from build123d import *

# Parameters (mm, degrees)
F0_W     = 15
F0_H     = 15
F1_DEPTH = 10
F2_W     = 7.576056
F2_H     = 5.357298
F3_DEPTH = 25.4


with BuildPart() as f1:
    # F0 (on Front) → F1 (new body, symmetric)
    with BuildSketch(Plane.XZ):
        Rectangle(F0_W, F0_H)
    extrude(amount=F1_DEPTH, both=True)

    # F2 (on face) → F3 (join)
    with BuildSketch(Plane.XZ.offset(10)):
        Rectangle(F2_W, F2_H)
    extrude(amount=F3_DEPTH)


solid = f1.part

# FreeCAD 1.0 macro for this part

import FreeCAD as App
import Part
import Sketcher

V = App.Vector
Q = App.Units.Quantity

doc = App.newDocument("Part")
params = doc.addObject("Spreadsheet::Sheet", "Params")
for row, (alias, value) in enumerate([
    ("sketch1_width", "15 mm"),
    ("pad1_length", "20 mm"),
    ("pad2_length", "25.4 mm"),
], start=1):
    params.set(f"A{row}", alias)
    params.set(f"B{row}", "=" + value)
    params.setAlias(f"B{row}", alias)

body = doc.addObject("PartDesign::Body", "Body")

sketch1 = body.newObject("Sketcher::SketchObject", "Sketch")
sketch1.AttachmentSupport = (doc.getObject("XZ_Plane"), [""])
sketch1.MapMode = "FlatFace"
sketch1.addGeometry([
    Part.LineSegment(V(-8, 8, 0), V(-8, -8, 0)),
    Part.LineSegment(V(-8, -8, 0), V(8, -8, 0)),
    Part.LineSegment(V(8, -8, 0), V(8, 8, 0)),
    Part.LineSegment(V(8, 8, 0), V(-8, 8, 0)),
], False)
sketch1.addConstraint([
    Sketcher.Constraint("Coincident", 0, 2, 1, 1),
    Sketcher.Constraint("Coincident", 1, 2, 2, 1),
    Sketcher.Constraint("Coincident", 2, 2, 3, 1),
    Sketcher.Constraint("Coincident", 3, 2, 0, 1),
    Sketcher.Constraint("Vertical", 0),
    Sketcher.Constraint("Horizontal", 1),
    Sketcher.Constraint("Vertical", 2),
    Sketcher.Constraint("Horizontal", 3),
    Sketcher.Constraint("Symmetric", 0, 2, 2, 2, -1, 1),
    Sketcher.Constraint("Equal", 3, 0),
    Sketcher.Constraint("DistanceX", 1, 1, 1, 2, Q("15 mm")),
])
sketch1.setExpression("Constraints[10]", "Params.sketch1_width")
pad1 = body.newObject("PartDesign::Pad", "Pad")
pad1.Profile = sketch1
pad1.setExpression("Length", "Params.pad1_length")
pad1.Midplane = True

sketch2 = body.newObject("Sketcher::SketchObject", "Sketch001")
sketch2.AttachmentSupport = (doc.getObject("XZ_Plane"), [""])
sketch2.MapMode = "FlatFace"
sketch2.AttachmentOffset = App.Placement(V(0, 0, 10), App.Rotation())
sketch2.addGeometry([
    Part.LineSegment(V(-4, 3, 0), V(-4, -3, 0)),
    Part.LineSegment(V(-4, -3, 0), V(4, -3, 0)),
    Part.LineSegment(V(4, -3, 0), V(4, 3, 0)),
    Part.LineSegment(V(4, 3, 0), V(-4, 3, 0)),
], False)
sketch2.addConstraint([
    Sketcher.Constraint("Coincident", 0, 2, 1, 1),
    Sketcher.Constraint("Coincident", 1, 2, 2, 1),
    Sketcher.Constraint("Coincident", 2, 2, 3, 1),
    Sketcher.Constraint("Coincident", 3, 2, 0, 1),
    Sketcher.Constraint("Vertical", 0),
    Sketcher.Constraint("Horizontal", 1),
    Sketcher.Constraint("Vertical", 2),
    Sketcher.Constraint("Horizontal", 3),
    Sketcher.Constraint("Symmetric", 0, 2, 2, 2, -1, 1),
    Sketcher.Constraint("DistanceX", 1, 1, 1, 2, Q("7.576056 mm")),
    Sketcher.Constraint("DistanceY", 0, 2, 0, 1, Q("5.357298 mm")),
])
pad2 = body.newObject("PartDesign::Pad", "Pad001")
pad2.Profile = sketch2
pad2.setExpression("Length", "Params.pad2_length")

doc.recompute()
